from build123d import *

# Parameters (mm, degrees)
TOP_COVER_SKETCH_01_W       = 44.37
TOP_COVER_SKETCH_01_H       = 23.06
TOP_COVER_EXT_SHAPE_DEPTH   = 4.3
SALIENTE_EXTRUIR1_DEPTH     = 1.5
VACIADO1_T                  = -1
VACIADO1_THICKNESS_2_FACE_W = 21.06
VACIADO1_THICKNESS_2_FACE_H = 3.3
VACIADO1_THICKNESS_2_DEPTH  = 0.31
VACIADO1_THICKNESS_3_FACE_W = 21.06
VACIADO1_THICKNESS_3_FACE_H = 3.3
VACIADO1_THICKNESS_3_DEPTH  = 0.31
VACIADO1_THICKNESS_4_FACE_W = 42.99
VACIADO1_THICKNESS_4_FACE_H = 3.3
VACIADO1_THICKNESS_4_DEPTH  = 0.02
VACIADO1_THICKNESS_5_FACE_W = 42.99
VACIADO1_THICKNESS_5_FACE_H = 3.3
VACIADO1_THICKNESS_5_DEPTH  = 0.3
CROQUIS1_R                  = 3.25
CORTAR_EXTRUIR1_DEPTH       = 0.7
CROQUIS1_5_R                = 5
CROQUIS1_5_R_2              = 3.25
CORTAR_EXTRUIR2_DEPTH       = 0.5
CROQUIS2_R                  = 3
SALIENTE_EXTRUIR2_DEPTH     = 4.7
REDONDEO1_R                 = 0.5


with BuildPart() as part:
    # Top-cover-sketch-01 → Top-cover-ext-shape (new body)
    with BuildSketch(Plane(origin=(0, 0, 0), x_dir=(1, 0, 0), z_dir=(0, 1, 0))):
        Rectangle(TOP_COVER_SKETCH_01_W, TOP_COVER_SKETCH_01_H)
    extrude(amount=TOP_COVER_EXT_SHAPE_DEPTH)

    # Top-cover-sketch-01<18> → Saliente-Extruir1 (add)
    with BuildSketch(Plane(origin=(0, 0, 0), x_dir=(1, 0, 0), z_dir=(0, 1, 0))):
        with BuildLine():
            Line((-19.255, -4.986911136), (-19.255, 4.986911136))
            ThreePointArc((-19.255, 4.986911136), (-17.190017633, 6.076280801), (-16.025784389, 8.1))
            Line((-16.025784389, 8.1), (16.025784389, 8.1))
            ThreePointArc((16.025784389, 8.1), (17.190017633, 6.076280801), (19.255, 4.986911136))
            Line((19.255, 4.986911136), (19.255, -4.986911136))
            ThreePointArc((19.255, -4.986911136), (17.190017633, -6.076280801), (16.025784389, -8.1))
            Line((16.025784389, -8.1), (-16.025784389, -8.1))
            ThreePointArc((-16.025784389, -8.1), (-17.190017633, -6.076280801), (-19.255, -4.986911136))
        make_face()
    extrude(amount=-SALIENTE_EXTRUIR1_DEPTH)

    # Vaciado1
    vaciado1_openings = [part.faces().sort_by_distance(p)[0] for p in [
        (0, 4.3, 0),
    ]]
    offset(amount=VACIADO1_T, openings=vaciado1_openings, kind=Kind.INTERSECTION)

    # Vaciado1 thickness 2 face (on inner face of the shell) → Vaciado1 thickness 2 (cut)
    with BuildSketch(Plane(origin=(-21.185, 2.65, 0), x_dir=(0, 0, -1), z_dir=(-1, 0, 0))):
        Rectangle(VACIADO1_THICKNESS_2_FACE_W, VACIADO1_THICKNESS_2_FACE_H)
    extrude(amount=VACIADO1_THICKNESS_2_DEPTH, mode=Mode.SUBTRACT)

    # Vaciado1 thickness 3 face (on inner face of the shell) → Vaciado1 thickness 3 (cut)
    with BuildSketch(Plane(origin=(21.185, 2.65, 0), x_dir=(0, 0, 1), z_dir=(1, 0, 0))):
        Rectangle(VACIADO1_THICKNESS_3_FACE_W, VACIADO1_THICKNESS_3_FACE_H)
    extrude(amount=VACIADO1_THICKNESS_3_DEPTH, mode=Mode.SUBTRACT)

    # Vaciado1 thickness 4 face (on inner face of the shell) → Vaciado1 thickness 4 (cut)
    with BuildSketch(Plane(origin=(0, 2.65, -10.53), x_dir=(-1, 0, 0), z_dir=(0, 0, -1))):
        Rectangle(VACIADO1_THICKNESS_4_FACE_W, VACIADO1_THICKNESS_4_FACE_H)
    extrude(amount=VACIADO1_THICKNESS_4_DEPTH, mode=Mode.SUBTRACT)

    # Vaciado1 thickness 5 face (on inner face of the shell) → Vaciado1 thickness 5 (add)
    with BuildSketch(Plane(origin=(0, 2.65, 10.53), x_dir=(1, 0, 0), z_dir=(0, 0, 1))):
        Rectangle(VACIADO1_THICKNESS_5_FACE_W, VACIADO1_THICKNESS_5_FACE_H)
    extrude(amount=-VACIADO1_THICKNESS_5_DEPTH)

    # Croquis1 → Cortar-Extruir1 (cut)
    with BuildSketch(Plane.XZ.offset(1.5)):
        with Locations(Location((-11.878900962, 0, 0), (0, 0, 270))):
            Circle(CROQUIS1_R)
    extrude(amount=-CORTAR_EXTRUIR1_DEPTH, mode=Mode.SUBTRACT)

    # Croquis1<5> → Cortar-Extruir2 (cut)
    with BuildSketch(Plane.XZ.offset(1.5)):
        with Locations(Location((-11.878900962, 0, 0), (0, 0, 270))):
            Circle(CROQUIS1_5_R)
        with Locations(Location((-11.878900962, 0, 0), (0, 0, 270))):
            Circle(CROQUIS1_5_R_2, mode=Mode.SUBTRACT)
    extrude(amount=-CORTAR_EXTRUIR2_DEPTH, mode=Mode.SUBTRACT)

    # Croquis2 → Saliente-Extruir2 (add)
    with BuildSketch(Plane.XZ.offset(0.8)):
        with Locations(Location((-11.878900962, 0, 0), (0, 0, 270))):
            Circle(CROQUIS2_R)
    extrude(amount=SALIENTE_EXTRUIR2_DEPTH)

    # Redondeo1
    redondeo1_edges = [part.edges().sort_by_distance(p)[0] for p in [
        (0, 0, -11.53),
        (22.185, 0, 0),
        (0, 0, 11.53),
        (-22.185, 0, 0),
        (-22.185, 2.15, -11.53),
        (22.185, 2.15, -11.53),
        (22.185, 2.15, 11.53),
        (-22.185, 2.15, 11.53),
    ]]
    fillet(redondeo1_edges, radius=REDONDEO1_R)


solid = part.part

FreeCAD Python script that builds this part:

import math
import FreeCAD as App
import Part
import Sketcher

V = App.Vector
Q = App.Units.Quantity


def edges_at(feature, points):
    """Names of the edges that pass closest to the given points."""
    edges = feature.Shape.Edges
    near = lambda p: min(range(len(edges)), key=lambda i: edges[i].distToShape(Part.Vertex(*p))[0])
    return sorted({f"Edge{near(p) + 1}" for p in points})


def faces_at(feature, points):
    """Names of the faces that lie closest to the given points."""
    faces = feature.Shape.Faces
    near = lambda p: min(range(len(faces)), key=lambda i: faces[i].distToShape(Part.Vertex(*p))[0])
    return sorted({f"Face{near(p) + 1}" for p in points})

doc = App.newDocument("Part")
body = doc.addObject("PartDesign::Body", "Body")

sketch1 = doc.addObject("Sketcher::SketchObject", "Sketch")
body.addObject(sketch1)
sketch1.AttachmentSupport = (doc.XZ_Plane, [""])
sketch1.MapMode = "FlatFace"
sketch1.addGeometry(Part.LineSegment(V(-22, -12, 0), V(-22, 12, 0)), False)
sketch1.addGeometry(Part.LineSegment(V(-22, 12, 0), V(22, 12, 0)), False)
sketch1.addGeometry(Part.LineSegment(V(22, 12, 0), V(22, -12, 0)), False)
sketch1.addGeometry(Part.LineSegment(V(22, -12, 0), V(-22, -12, 0)), False)
sketch1.addConstraint(Sketcher.Constraint("Coincident", 0, 2, 1, 1))
sketch1.addConstraint(Sketcher.Constraint("Coincident", 1, 2, 2, 1))
sketch1.addConstraint(Sketcher.Constraint("Coincident", 2, 2, 3, 1))
sketch1.addConstraint(Sketcher.Constraint("Coincident", 3, 2, 0, 1))
sketch1.addConstraint(Sketcher.Constraint("Vertical", 0))
sketch1.addConstraint(Sketcher.Constraint("Horizontal", 1))
sketch1.addConstraint(Sketcher.Constraint("Vertical", 2))
sketch1.addConstraint(Sketcher.Constraint("Horizontal", 3))
sketch1.addConstraint(Sketcher.Constraint("Symmetric", 0, 2, 2, 2, -1, 1))
sketch1.addConstraint(Sketcher.Constraint("DistanceX", 1, 1, 1, 2, Q("44.37 mm")))
sketch1.addConstraint(Sketcher.Constraint("DistanceY", 0, 1, 0, 2, Q("23.06 mm")))
pad1 = doc.addObject("PartDesign::Pad", "Pad")
body.addObject(pad1)
pad1.Profile = sketch1
pad1.Length = 4.3
pad1.Reversed = True

sketch2 = doc.addObject("Sketcher::SketchObject", "Sketch001")
body.addObject(sketch2)
sketch2.AttachmentSupport = (doc.XZ_Plane, [""])
sketch2.MapMode = "FlatFace"
sketch2.addGeometry(Part.LineSegment(V(-19.3, -5, 0), V(-19.3, 5, 0)), False)
sketch2.addGeometry(Part.ArcOfCircle(Part.Circle(V(-20.1, 9.1, 0), V(0, 0, 1), 4.2), math.radians(-78), math.radians(-14)), False)
sketch2.addGeometry(Part.LineSegment(V(-16, 8.1, 0), V(16, 8.1, 0)), False)
sketch2.addGeometry(Part.ArcOfCircle(Part.Circle(V(20.1, 9.1, 0), V(0, 0, 1), 4.2), math.radians(-166), math.radians(-102)), False)
sketch2.addGeometry(Part.LineSegment(V(19.3, 5, 0), V(19.3, -5, 0)), False)
sketch2.addGeometry(Part.ArcOfCircle(Part.Circle(V(20.1, -9.1, 0), V(0, 0, 1), 4.2), math.radians(102), math.radians(166)), False)
sketch2.addGeometry(Part.LineSegment(V(16, -8.1, 0), V(-16, -8.1, 0)), False)
sketch2.addGeometry(Part.ArcOfCircle(Part.Circle(V(-20.1, -9.1, 0), V(0, 0, 1), 4.2), math.radians(14), math.radians(78)), False)
sketch2.addConstraint(Sketcher.Constraint("Coincident", 0, 2, 1, 1))
sketch2.addConstraint(Sketcher.Constraint("Coincident", 1, 2, 2, 1))
sketch2.addConstraint(Sketcher.Constraint("Coincident", 2, 2, 3, 1))
sketch2.addConstraint(Sketcher.Constraint("Coincident", 3, 2, 4, 1))
sketch2.addConstraint(Sketcher.Constraint("Coincident", 4, 2, 5, 1))
sketch2.addConstraint(Sketcher.Constraint("Coincident", 5, 2, 6, 1))
sketch2.addConstraint(Sketcher.Constraint("Coincident", 6, 2, 7, 1))
sketch2.addConstraint(Sketcher.Constraint("Coincident", 7, 2, 0, 1))
sketch2.addConstraint(Sketcher.Constraint("Vertical", 0))
sketch2.addConstraint(Sketcher.Constraint("Horizontal", 2))
sketch2.addConstraint(Sketcher.Constraint("Vertical", 4))
sketch2.addConstraint(Sketcher.Constraint("Horizontal", 6))
sketch2.addConstraint(Sketcher.Constraint("Equal", 1, 3))
sketch2.addConstraint(Sketcher.Constraint("Equal", 3, 5))
sketch2.addConstraint(Sketcher.Constraint("Equal", 5, 7))
sketch2.addConstraint(Sketcher.Constraint("Symmetric", 1, 3, 5, 3, -1, 1))
sketch2.addConstraint(Sketcher.Constraint("Symmetric", 3, 3, 7, 3, -1, 1))
sketch2.addConstraint(Sketcher.Constraint("Symmetric", 1, 3, 3, 3, -2))
sketch2.addConstraint(Sketcher.Constraint("Horizontal", 0, 2, 3, 2))
sketch2.addConstraint(Sketcher.Constraint("Vertical", 2, 2, 5, 2))
sketch2.addConstraint(Sketcher.Constraint("Radius", 1, Q("4.2 mm")))
sketch2.addConstraint(Sketcher.Constraint("DistanceY", 1, 2, 1, 3, Q("1 mm")))
sketch2.addConstraint(Sketcher.Constraint("DistanceY", -1, 1, 1, 3, Q("9.1 mm")))
sketch2.addConstraint(Sketcher.Constraint("DistanceX", 1, 3, 3, 3, Q("40.21 mm")))
sketch2.addConstraint(Sketcher.Constraint("DistanceX", 1, 3, 0, 2, Q("0.85 mm")))
pad2 = doc.addObject("PartDesign::Pad", "Pad001")
body.addObject(pad2)
pad2.Profile = sketch2
pad2.Length = 1.5
doc.recompute()

thickness = doc.addObject("PartDesign::Thickness", "Thickness")
body.addObject(thickness)
thickness.Base = (pad2, faces_at(pad2, [(0, 4.3, 0)]))
thickness.Value = 1
thickness.Reversed = True
thickness.Join = "Intersection"

sketch3 = doc.addObject("Sketcher::SketchObject", "Sketch002")
body.addObject(sketch3)
sketch3.AttachmentSupport = (doc.YZ_Plane, [""])
sketch3.MapMode = "FlatFace"
sketch3.AttachmentOffset = App.Placement(V(0, 0, -21.185), App.Rotation())
sketch3.addGeometry(Part.LineSegment(V(1, 10.5, 0), V(4.3, 10.5, 0)), False)
sketch3.addGeometry(Part.LineSegment(V(4.3, 10.5, 0), V(4.3, -10.5, 0)), False)
sketch3.addGeometry(Part.LineSegment(V(4.3, -10.5, 0), V(1, -10.5, 0)), False)
sketch3.addGeometry(Part.LineSegment(V(1, -10.5, 0), V(1, 10.5, 0)), False)
sketch3.addConstraint(Sketcher.Constraint("Coincident", 0, 2, 1, 1))
sketch3.addConstraint(Sketcher.Constraint("Coincident", 1, 2, 2, 1))
sketch3.addConstraint(Sketcher.Constraint("Coincident", 2, 2, 3, 1))
sketch3.addConstraint(Sketcher.Constraint("Coincident", 3, 2, 0, 1))
sketch3.addConstraint(Sketcher.Constraint("Horizontal", 0))
sketch3.addConstraint(Sketcher.Constraint("Vertical", 1))
sketch3.addConstraint(Sketcher.Constraint("Horizontal", 2))
sketch3.addConstraint(Sketcher.Constraint("Vertical", 3))
sketch3.addConstraint(Sketcher.Constraint("DistanceX", 0, 1, 0, 2, Q("3.3 mm")))
sketch3.addConstraint(Sketcher.Constraint("DistanceX", -1, 1, 2, 2, Q("1 mm")))
sketch3.addConstraint(Sketcher.Constraint("DistanceY", 1, 2, 1, 1, Q("21.06 mm")))
sketch3.addConstraint(Sketcher.Constraint("DistanceY", -1, 1, 0, 2, Q("10.53 mm")))
pocket1 = doc.addObject("PartDesign::Pocket", "Pocket")
body.addObject(pocket1)
pocket1.Profile = sketch3
pocket1.Length = 0.31

sketch4 = doc.addObject("Sketcher::SketchObject", "Sketch003")
body.addObject(sketch4)
sketch4.AttachmentSupport = (doc.YZ_Plane, [""])
sketch4.MapMode = "FlatFace"
sketch4.AttachmentOffset = App.Placement(V(0, 0, 21.185), App.Rotation())
sketch4.addGeometry(Part.LineSegment(V(1, -10.5, 0), V(4.3, -10.5, 0)), False)
sketch4.addGeometry(Part.LineSegment(V(4.3, -10.5, 0), V(4.3, 10.5, 0)), False)
sketch4.addGeometry(Part.LineSegment(V(4.3, 10.5, 0), V(1, 10.5, 0)), False)
sketch4.addGeometry(Part.LineSegment(V(1, 10.5, 0), V(1, -10.5, 0)), False)
sketch4.addConstraint(Sketcher.Constraint("Coincident", 0, 2, 1, 1))
sketch4.addConstraint(Sketcher.Constraint("Coincident", 1, 2, 2, 1))
sketch4.addConstraint(Sketcher.Constraint("Coincident", 2, 2, 3, 1))
sketch4.addConstraint(Sketcher.Constraint("Coincident", 3, 2, 0, 1))
sketch4.addConstraint(Sketcher.Constraint("Horizontal", 0))
sketch4.addConstraint(Sketcher.Constraint("Vertical", 1))
sketch4.addConstraint(Sketcher.Constraint("Horizontal", 2))
sketch4.addConstraint(Sketcher.Constraint("Vertical", 3))
sketch4.addConstraint(Sketcher.Constraint("DistanceX", 0, 1, 0, 2, Q("3.3 mm")))
sketch4.addConstraint(Sketcher.Constraint("DistanceX", -1, 1, 2, 2, Q("1 mm")))
sketch4.addConstraint(Sketcher.Constraint("DistanceY", 1, 1, 1, 2, Q("21.06 mm")))
sketch4.addConstraint(Sketcher.Constraint("DistanceY", 0, 2, -1, 1, Q("10.53 mm")))
pocket2 = doc.addObject("PartDesign::Pocket", "Pocket001")
body.addObject(pocket2)
pocket2.Profile = sketch4
pocket2.Length = 0.31
pocket2.Reversed = True

sketch5 = doc.addObject("Sketcher::SketchObject", "Sketch004")
body.addObject(sketch5)
sketch5.AttachmentSupport = (doc.XY_Plane, [""])
sketch5.MapMode = "FlatFace"
sketch5.AttachmentOffset = App.Placement(V(0, 0, -10.53), App.Rotation())
sketch5.addGeometry(Part.LineSegment(V(21.5, 4.3, 0), V(21.5, 1, 0)), False)
sketch5.addGeometry(Part.LineSegment(V(21.5, 1, 0), V(-21.5, 1, 0)), False)
sketch5.addGeometry(Part.LineSegment(V(-21.5, 1, 0), V(-21.5, 4.3, 0)), False)
sketch5.addGeometry(Part.LineSegment(V(-21.5, 4.3, 0), V(21.5, 4.3, 0)), False)
sketch5.addConstraint(Sketcher.Constraint("Coincident", 0, 2, 1, 1))
sketch5.addConstraint(Sketcher.Constraint("Coincident", 1, 2, 2, 1))
sketch5.addConstraint(Sketcher.Constraint("Coincident", 2, 2, 3, 1))
sketch5.addConstraint(Sketcher.Constraint("Coincident", 3, 2, 0, 1))
sketch5.addConstraint(Sketcher.Constraint("Vertical", 0))
sketch5.addConstraint(Sketcher.Constraint("Horizontal", 1))
sketch5.addConstraint(Sketcher.Constraint("Vertical", 2))
sketch5.addConstraint(Sketcher.Constraint("Horizontal", 3))
sketch5.addConstraint(Sketcher.Constraint("DistanceY", 0, 2, 0, 1, Q("3.3 mm")))
sketch5.addConstraint(Sketcher.Constraint("DistanceY", -1, 1, 0, 2, Q("1 mm")))
sketch5.addConstraint(Sketcher.Constraint("DistanceX", 1, 2, 1, 1, Q("42.99 mm")))
sketch5.addConstraint(Sketcher.Constraint("DistanceX", -1, 1, 0, 2, Q("21.495 mm")))
pocket3 = doc.addObject("PartDesign::Pocket", "Pocket002")
body.addObject(pocket3)
pocket3.Profile = sketch5
pocket3.Length = 0.02

sketch6 = doc.addObject("Sketcher::SketchObject", "Sketch005")
body.addObject(sketch6)
sketch6.AttachmentSupport = (doc.XY_Plane, [""])
sketch6.MapMode = "FlatFace"
sketch6.AttachmentOffset = App.Placement(V(0, 0, 10.53), App.Rotation())
sketch6.addGeometry(Part.LineSegment(V(-21.5, 4.3, 0), V(-21.5, 1, 0)), False)
sketch6.addGeometry(Part.LineSegment(V(-21.5, 1, 0), V(21.5, 1, 0)), False)
sketch6.addGeometry(Part.LineSegment(V(21.5, 1, 0), V(21.5, 4.3, 0)), False)
sketch6.addGeometry(Part.LineSegment(V(21.5, 4.3, 0), V(-21.5, 4.3, 0)), False)
sketch6.addConstraint(Sketcher.Constraint("Coincident", 0, 2, 1, 1))
sketch6.addConstraint(Sketcher.Constraint("Coincident", 1, 2, 2, 1))
sketch6.addConstraint(Sketcher.Constraint("Coincident", 2, 2, 3, 1))
sketch6.addConstraint(Sketcher.Constraint("Coincident", 3, 2, 0, 1))
sketch6.addConstraint(Sketcher.Constraint("Vertical", 0))
sketch6.addConstraint(Sketcher.Constraint("Horizontal", 1))
sketch6.addConstraint(Sketcher.Constraint("Vertical", 2))
sketch6.addConstraint(Sketcher.Constraint("Horizontal", 3))
sketch6.addConstraint(Sketcher.Constraint("DistanceY", 0, 2, 0, 1, Q("3.3 mm")))
sketch6.addConstraint(Sketcher.Constraint("DistanceY", -1, 1, 0, 2, Q("1 mm")))
sketch6.addConstraint(Sketcher.Constraint("DistanceX", 1, 1, 1, 2, Q("42.99 mm")))
sketch6.addConstraint(Sketcher.Constraint("DistanceX", 0, 2, -1, 1, Q("21.495 mm")))
pad3 = doc.addObject("PartDesign::Pad", "Pad002")
body.addObject(pad3)
pad3.Profile = sketch6
pad3.Length = 0.3
pad3.Reversed = True

sketch7 = doc.addObject("Sketcher::SketchObject", "Sketch006")
body.addObject(sketch7)
sketch7.AttachmentSupport = (doc.XZ_Plane, [""])
sketch7.MapMode = "FlatFace"
sketch7.AttachmentOffset = App.Placement(V(0, 0, 1.5), App.Rotation())
sketch7.addGeometry(Part.Circle(V(-11.9, 0, 0), V(0, 0, 1), 3.2), False)
sketch7.addConstraint(Sketcher.Constraint("PointOnObject", 0, 3, -1))
sketch7.addConstraint(Sketcher.Constraint("Diameter", 0, Q("6.5 mm")))
sketch7.addConstraint(Sketcher.Constraint("DistanceX", 0, 3, -1, 1, Q("11.878901 mm")))
pocket4 = doc.addObject("PartDesign::Pocket", "Pocket003")
body.addObject(pocket4)
pocket4.Profile = sketch7
pocket4.Length = 0.7

sketch8 = doc.addObject("Sketcher::SketchObject", "Sketch007")
body.addObject(sketch8)
sketch8.AttachmentSupport = (doc.XZ_Plane, [""])
sketch8.MapMode = "FlatFace"
sketch8.AttachmentOffset = App.Placement(V(0, 0, 1.5), App.Rotation())
sketch8.addGeometry(Part.Circle(V(-11.9, 0, 0), V(0, 0, 1), 5), False)
sketch8.addGeometry(Part.Circle(V(-11.9, 0, 0), V(0, 0, 1), 3.2), False)
sketch8.addConstraint(Sketcher.Constraint("Coincident", 1, 3, 0, 3))
sketch8.addConstraint(Sketcher.Constraint("PointOnObject", 0, 3, -1))
sketch8.addConstraint(Sketcher.Constraint("Diameter", 0, Q("10 mm")))
sketch8.addConstraint(Sketcher.Constraint("Diameter", 1, Q("6.5 mm")))
sketch8.addConstraint(Sketcher.Constraint("DistanceX", 0, 3, -1, 1, Q("11.878901 mm")))
pocket5 = doc.addObject("PartDesign::Pocket", "Pocket004")
body.addObject(pocket5)
pocket5.Profile = sketch8
pocket5.Length = 0.5

sketch9 = doc.addObject("Sketcher::SketchObject", "Sketch008")
body.addObject(sketch9)
sketch9.AttachmentSupport = (doc.XZ_Plane, [""])
sketch9.MapMode = "FlatFace"
sketch9.AttachmentOffset = App.Placement(V(0, 0, 0.8), App.Rotation())
sketch9.addGeometry(Part.Circle(V(-11.9, 0, 0), V(0, 0, 1), 3), False)
sketch9.addConstraint(Sketcher.Constraint("PointOnObject", 0, 3, -1))
sketch9.addConstraint(Sketcher.Constraint("Diameter", 0, Q("6 mm")))
sketch9.addConstraint(Sketcher.Constraint("DistanceX", 0, 3, -1, 1, Q("11.878901 mm")))
pad4 = doc.addObject("PartDesign::Pad", "Pad003")
body.addObject(pad4)
pad4.Profile = sketch9
pad4.Length = 4.7
doc.recompute()

fillet = doc.addObject("PartDesign::Fillet", "Fillet")
body.addObject(fillet)
fillet.Base = (pad4, edges_at(pad4, [
    (0, 0, -11.53),
    (22.185, 0, 0),
    (0, 0, 11.53),
    (-22.185, 0, 0),
    (-22.185, 2.15, -11.53),
    (22.185, 2.15, -11.53),
    (22.185, 2.15, 11.53),
    (-22.185, 2.15, 11.53),
]))
fillet.Radius = 0.5

doc.recompute()
